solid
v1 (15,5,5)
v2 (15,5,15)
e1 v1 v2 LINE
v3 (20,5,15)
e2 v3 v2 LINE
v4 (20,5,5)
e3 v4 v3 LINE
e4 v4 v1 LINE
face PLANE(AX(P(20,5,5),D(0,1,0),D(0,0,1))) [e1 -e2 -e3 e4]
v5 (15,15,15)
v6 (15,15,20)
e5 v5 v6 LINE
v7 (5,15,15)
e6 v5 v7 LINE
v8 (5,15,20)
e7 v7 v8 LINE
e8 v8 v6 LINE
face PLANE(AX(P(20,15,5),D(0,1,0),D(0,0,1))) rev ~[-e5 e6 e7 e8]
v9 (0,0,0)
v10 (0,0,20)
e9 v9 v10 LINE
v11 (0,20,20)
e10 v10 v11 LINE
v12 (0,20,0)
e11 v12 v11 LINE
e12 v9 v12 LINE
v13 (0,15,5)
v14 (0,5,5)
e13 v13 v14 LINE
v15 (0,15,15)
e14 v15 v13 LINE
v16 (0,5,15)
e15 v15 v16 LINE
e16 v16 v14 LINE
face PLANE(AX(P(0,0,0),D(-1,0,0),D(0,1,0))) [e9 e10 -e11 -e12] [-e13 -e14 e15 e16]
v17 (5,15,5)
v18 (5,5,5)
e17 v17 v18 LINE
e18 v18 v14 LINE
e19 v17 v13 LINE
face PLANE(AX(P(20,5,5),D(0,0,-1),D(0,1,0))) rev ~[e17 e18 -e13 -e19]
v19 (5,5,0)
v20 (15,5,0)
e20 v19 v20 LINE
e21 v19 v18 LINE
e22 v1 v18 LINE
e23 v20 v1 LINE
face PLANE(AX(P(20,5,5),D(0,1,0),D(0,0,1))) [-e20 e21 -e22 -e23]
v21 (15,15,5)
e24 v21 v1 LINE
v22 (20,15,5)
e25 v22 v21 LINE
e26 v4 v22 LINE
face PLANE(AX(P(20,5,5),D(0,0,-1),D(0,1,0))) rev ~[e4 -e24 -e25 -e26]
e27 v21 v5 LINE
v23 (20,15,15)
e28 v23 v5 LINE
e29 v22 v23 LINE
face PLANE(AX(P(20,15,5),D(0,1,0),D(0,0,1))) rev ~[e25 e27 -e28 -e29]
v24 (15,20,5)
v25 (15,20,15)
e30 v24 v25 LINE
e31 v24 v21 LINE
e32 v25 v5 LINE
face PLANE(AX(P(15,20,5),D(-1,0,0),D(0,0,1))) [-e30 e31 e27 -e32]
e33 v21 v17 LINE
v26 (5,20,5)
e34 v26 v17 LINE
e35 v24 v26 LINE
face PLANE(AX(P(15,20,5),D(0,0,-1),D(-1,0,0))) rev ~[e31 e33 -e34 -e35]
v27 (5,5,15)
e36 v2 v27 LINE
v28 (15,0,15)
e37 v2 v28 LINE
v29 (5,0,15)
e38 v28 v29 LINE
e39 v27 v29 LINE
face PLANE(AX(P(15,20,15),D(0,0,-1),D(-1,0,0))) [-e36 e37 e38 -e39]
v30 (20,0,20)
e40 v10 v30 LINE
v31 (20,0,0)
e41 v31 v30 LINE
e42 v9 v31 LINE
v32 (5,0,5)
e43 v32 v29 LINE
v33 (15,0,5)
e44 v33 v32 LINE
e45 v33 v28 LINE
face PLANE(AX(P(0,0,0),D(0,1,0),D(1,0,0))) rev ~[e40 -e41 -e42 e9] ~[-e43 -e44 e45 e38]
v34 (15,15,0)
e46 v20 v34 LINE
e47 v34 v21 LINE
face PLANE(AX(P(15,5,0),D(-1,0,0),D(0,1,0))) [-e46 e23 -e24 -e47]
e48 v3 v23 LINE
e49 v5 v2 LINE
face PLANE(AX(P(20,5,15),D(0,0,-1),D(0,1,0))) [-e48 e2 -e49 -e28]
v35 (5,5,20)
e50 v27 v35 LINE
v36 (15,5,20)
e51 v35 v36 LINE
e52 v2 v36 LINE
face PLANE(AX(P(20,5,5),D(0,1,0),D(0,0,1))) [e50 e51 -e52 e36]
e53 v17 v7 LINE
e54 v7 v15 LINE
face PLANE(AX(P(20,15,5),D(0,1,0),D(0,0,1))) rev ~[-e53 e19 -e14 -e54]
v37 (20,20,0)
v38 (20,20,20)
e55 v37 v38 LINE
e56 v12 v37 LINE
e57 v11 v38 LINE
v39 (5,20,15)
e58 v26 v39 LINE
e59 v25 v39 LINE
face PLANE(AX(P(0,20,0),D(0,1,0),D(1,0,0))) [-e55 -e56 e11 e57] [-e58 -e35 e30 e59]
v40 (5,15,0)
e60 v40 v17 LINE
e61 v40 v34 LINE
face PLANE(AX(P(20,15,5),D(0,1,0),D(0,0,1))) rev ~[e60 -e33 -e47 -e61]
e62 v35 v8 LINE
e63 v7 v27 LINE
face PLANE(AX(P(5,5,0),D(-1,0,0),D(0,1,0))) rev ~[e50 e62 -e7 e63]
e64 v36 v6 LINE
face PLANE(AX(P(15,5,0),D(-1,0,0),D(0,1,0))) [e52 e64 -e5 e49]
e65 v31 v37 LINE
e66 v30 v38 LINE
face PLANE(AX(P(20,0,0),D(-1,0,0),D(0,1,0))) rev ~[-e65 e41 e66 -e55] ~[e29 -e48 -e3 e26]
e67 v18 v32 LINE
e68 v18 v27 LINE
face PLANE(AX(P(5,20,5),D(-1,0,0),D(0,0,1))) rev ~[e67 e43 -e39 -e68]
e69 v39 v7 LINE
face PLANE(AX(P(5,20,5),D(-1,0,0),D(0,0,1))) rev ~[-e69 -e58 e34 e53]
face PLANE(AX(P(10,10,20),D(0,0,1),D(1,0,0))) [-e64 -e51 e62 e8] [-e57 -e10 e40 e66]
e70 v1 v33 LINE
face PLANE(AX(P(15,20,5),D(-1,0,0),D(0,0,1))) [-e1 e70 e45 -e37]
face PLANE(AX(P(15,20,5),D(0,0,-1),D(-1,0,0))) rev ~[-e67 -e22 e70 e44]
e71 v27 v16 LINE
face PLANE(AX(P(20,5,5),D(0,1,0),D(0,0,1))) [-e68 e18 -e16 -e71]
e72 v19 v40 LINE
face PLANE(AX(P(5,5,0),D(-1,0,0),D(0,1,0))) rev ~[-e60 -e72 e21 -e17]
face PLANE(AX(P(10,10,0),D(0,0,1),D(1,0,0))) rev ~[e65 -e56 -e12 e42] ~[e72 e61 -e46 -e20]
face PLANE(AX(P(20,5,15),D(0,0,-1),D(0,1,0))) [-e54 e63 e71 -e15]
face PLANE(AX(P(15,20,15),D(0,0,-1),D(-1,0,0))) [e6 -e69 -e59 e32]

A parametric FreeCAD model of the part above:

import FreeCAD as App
import Part
import Sketcher

doc = App.newDocument("Part")
params = doc.addObject("Spreadsheet::Sheet", "Params")
for row, (alias, value) in enumerate([
    ("sketch1_width", "20 mm"),
    ("sketch1_width2", "10 mm"),
    ("pad1_length", "20 mm"),
    ("sketch2_width", "10 mm"),
    ("sketch3_width", "10 mm"),
], start=1):
    params.set(f"A{row}", alias)
    params.set(f"B{row}", "=" + value)
    params.setAlias(f"B{row}", alias)

body = doc.addObject("PartDesign::Body", "Body")

# Sketch on XY plane
sketch1 = body.newObject("Sketcher::SketchObject", "Sketch")
sketch1.AttachmentSupport = (doc.getObject("XY_Plane"), [""])
sketch1.MapMode = "FlatFace"
sketch1.addGeometry([
    Part.LineSegment(App.Vector(0, 20, 0), App.Vector(0, 0, 0)),  # 0
    Part.LineSegment(App.Vector(0, 0, 0), App.Vector(20, 0, 0)),  # 1
    Part.LineSegment(App.Vector(20, 0, 0), App.Vector(20, 20, 0)),  # 2
    Part.LineSegment(App.Vector(20, 20, 0), App.Vector(0, 20, 0)),  # 3
    Part.LineSegment(App.Vector(15, 5, 0), App.Vector(5, 5, 0)),  # 4
    Part.LineSegment(App.Vector(5, 5, 0), App.Vector(5, 15, 0)),  # 5
    Part.LineSegment(App.Vector(5, 15, 0), App.Vector(15, 15, 0)),  # 6
    Part.LineSegment(App.Vector(15, 15, 0), App.Vector(15, 5, 0)),  # 7
], False)
sketch1.addConstraint([
    Sketcher.Constraint("Coincident", 0, 2, 1, 1),
    Sketcher.Constraint("Coincident", 1, 2, 2, 1),
    Sketcher.Constraint("Coincident", 2, 2, 3, 1),
    Sketcher.Constraint("Coincident", 3, 2, 0, 1),
    Sketcher.Constraint("Coincident", 4, 2, 5, 1),
    Sketcher.Constraint("Coincident", 5, 2, 6, 1),
    Sketcher.Constraint("Coincident", 6, 2, 7, 1),
    Sketcher.Constraint("Coincident", 7, 2, 4, 1),
    Sketcher.Constraint("Vertical", 0),
    Sketcher.Constraint("Horizontal", 1),
    Sketcher.Constraint("Vertical", 2),
    Sketcher.Constraint("Horizontal", 3),
    Sketcher.Constraint("Horizontal", 4),
    Sketcher.Constraint("Vertical", 5),
    Sketcher.Constraint("Horizontal", 6),
    Sketcher.Constraint("Vertical", 7),
    Sketcher.Constraint("Coincident", 0, 2, -1, 1),
    Sketcher.Constraint("Equal", 3, 0),
    Sketcher.Constraint("Equal", 6, 5),
    Sketcher.Constraint("DistanceX", 1, 1, 1, 2, 20.0),
    Sketcher.Constraint("DistanceX", 4, 2, 4, 1, 10.0),
    Sketcher.Constraint("DistanceX", -1, 1, 4, 2, 5.0),
    Sketcher.Constraint("DistanceY", -1, 1, 4, 2, 5.0),
])
sketch1.setExpression("Constraints[19]", "Params.sketch1_width")
sketch1.setExpression("Constraints[20]", "Params.sketch1_width2")
pad1 = body.newObject("PartDesign::Pad", "Pad")
pad1.Profile = sketch1
pad1.setExpression("Length", "Params.pad1_length")

# Sketch on YZ plane
sketch2 = body.newObject("Sketcher::SketchObject", "Sketch001")
sketch2.AttachmentSupport = (doc.getObject("YZ_Plane"), [""])
sketch2.MapMode = "FlatFace"
sketch2.AttachmentOffset = App.Placement(App.Vector(0, 0, 20), App.Rotation())
sketch2.addGeometry([
    Part.LineSegment(App.Vector(5, 15, 0), App.Vector(5, 5, 0)),
    Part.LineSegment(App.Vector(5, 5, 0), App.Vector(15, 5, 0)),
    Part.LineSegment(App.Vector(15, 5, 0), App.Vector(15, 15, 0)),
    Part.LineSegment(App.Vector(15, 15, 0), App.Vector(5, 15, 0)),
], False)
sketch2.addConstraint([
    Sketcher.Constraint("Coincident", 0, 2, 1, 1),
    Sketcher.Constraint("Coincident", 1, 2, 2, 1),
    Sketcher.Constraint("Coincident", 2, 2, 3, 1),
    Sketcher.Constraint("Coincident", 3, 2, 0, 1),
    Sketcher.Constraint("Vertical", 0),
    Sketcher.Constraint("Horizontal", 1),
    Sketcher.Constraint("Vertical", 2),
    Sketcher.Constraint("Horizontal", 3),
    Sketcher.Constraint("Equal", 3, 0),
    Sketcher.Constraint("DistanceX", 1, 1, 1, 2, 10.0),
    Sketcher.Constraint("DistanceX", -1, 1, 0, 2, 5.0),
    Sketcher.Constraint("DistanceY", -1, 1, 0, 2, 5.0),
])
sketch2.setExpression("Constraints[9]", "Params.sketch2_width")
pocket1 = body.newObject("PartDesign::Pocket", "Pocket")
pocket1.Profile = sketch2
pocket1.Type = "ThroughAll"

# Sketch on XZ plane
sketch3 = body.newObject("Sketcher::SketchObject", "Sketch002")
sketch3.AttachmentSupport = (doc.getObject("XZ_Plane"), [""])
sketch3.MapMode = "FlatFace"
sketch3.AttachmentOffset = App.Placement(App.Vector(0, 0, -20), App.Rotation())
sketch3.addGeometry([
    Part.LineSegment(App.Vector(15, 15, 0), App.Vector(15, 5, 0)),
    Part.LineSegment(App.Vector(15, 5, 0), App.Vector(5, 5, 0)),
    Part.LineSegment(App.Vector(5, 5, 0), App.Vector(5, 15, 0)),
    Part.LineSegment(App.Vector(5, 15, 0), App.Vector(15, 15, 0)),
], False)
sketch3.addConstraint([
    Sketcher.Constraint("Coincident", 0, 2, 1, 1),
    Sketcher.Constraint("Coincident", 1, 2, 2, 1),
    Sketcher.Constraint("Coincident", 2, 2, 3, 1),
    Sketcher.Constraint("Coincident", 3, 2, 0, 1),
    Sketcher.Constraint("Vertical", 0),
    Sketcher.Constraint("Horizontal", 1),
    Sketcher.Constraint("Vertical", 2),
    Sketcher.Constraint("Horizontal", 3),
    Sketcher.Constraint("Equal", 3, 0),
    Sketcher.Constraint("DistanceX", 1, 2, 1, 1, 10.0),
    Sketcher.Constraint("DistanceX", -1, 1, 0, 2, 15.0),
    Sketcher.Constraint("DistanceY", -1, 1, 0, 2, 5.0),
])
sketch3.setExpression("Constraints[9]", "Params.sketch3_width")
pocket2 = body.newObject("PartDesign::Pocket", "Pocket001")
pocket2.Profile = sketch3
pocket2.Type = "ThroughAll"
pocket2.Reversed = True

doc.recompute()
